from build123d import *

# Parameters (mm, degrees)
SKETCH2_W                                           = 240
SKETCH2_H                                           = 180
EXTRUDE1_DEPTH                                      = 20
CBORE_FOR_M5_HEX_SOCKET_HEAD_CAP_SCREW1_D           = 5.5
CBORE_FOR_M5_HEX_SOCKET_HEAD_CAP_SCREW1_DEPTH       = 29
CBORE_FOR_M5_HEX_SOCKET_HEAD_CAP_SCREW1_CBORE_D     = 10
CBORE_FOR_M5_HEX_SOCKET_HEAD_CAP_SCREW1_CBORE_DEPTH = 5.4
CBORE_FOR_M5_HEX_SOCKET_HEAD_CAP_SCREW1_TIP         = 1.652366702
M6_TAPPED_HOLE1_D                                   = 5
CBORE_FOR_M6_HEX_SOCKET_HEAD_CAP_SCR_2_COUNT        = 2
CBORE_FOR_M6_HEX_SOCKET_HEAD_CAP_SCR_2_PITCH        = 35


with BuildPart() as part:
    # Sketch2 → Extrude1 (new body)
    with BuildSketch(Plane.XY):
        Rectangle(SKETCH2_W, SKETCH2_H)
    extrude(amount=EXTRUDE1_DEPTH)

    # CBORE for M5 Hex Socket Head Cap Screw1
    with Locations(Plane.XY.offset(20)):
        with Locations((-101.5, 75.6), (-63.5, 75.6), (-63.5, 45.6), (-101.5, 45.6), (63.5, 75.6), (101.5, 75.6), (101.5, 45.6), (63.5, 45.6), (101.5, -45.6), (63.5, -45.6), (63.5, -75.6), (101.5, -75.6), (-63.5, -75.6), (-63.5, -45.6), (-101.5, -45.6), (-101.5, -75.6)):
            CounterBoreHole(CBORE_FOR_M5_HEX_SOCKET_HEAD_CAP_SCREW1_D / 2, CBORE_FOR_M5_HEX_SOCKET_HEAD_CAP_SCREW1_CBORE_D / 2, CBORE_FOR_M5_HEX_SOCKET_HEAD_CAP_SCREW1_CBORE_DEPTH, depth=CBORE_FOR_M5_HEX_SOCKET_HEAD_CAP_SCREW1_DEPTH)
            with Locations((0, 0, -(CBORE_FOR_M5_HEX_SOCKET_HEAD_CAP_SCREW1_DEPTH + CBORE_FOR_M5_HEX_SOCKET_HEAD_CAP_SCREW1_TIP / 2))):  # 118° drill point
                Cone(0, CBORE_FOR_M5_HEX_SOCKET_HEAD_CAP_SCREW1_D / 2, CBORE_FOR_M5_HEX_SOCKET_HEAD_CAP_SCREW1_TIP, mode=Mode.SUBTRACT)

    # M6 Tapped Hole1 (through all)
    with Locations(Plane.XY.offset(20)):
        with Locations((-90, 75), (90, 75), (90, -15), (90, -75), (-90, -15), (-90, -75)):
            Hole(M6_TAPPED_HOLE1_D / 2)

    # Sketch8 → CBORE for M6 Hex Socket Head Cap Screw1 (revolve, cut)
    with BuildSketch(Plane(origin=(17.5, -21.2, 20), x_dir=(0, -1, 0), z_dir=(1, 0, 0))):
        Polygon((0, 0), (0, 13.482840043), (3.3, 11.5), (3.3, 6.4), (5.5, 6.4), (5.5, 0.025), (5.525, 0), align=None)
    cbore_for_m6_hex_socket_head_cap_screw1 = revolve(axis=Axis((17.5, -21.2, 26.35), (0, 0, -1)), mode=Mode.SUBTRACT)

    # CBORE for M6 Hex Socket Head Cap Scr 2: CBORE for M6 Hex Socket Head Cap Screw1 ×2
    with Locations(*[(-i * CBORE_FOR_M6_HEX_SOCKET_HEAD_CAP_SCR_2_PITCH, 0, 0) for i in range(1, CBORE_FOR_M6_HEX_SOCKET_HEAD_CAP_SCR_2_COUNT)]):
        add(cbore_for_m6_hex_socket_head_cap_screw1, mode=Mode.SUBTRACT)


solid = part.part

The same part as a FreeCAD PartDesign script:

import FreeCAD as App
import Part
import Sketcher
from FreeCAD import Vector
Q = App.Units.Quantity

doc = App.newDocument("Part")
params = doc.addObject("Spreadsheet::Sheet", "Params")
for row, (alias, value) in enumerate([
    ("sketch1_width", "240 mm"),
    ("sketch1_height", "180 mm"),
    ("pad1_length", "20 mm"),
    ("sketch2_diameter", "5.5 mm"),
    ("hole_diameter", "5.5 mm"),
    ("hole_depth", "29 mm"),
    ("hole_cbore_diameter", "10 mm"),
    ("hole_cbore_depth", "5.4 mm"),
    ("sketch3_diameter", "5 mm"),
    ("hole2_diameter", "5 mm"),
    ("sketch4_width", "2.2 mm"),
    ("sketch4_height", "5.1 mm"),
    ("groove_angle", "360 deg"),
    ("linearpattern_pitch", "35 mm"),
], start=1):
    params.set(f"A{row}", alias)
    params.set(f"B{row}", "=" + value)
    params.setAlias(f"B{row}", alias)

body = doc.addObject("PartDesign::Body", "Body")

sketch1 = body.newObject("Sketcher::SketchObject", "Sketch")
sketch1.AttachmentSupport = (doc.getObject("XY_Plane"), [""])
sketch1.MapMode = "FlatFace"
sketch1.addGeometry(Part.LineSegment(Vector(-120, 90, 0), Vector(-120, -90, 0)), False)
sketch1.addGeometry(Part.LineSegment(Vector(-120, -90, 0), Vector(120, -90, 0)), False)
sketch1.addGeometry(Part.LineSegment(Vector(120, -90, 0), Vector(120, 90, 0)), False)
sketch1.addGeometry(Part.LineSegment(Vector(120, 90, 0), Vector(-120, 90, 0)), False)
sketch1.addConstraint(Sketcher.Constraint("Coincident", 0, 2, 1, 1))
sketch1.addConstraint(Sketcher.Constraint("Coincident", 1, 2, 2, 1))
sketch1.addConstraint(Sketcher.Constraint("Coincident", 2, 2, 3, 1))
sketch1.addConstraint(Sketcher.Constraint("Coincident", 3, 2, 0, 1))
sketch1.addConstraint(Sketcher.Constraint("Vertical", 0))
sketch1.addConstraint(Sketcher.Constraint("Horizontal", 1))
sketch1.addConstraint(Sketcher.Constraint("Vertical", 2))
sketch1.addConstraint(Sketcher.Constraint("Horizontal", 3))
sketch1.addConstraint(Sketcher.Constraint("Symmetric", 0, 2, 2, 2, -1, 1))
sketch1.addConstraint(Sketcher.Constraint("DistanceX", 1, 1, 1, 2, Q("240 mm")))
sketch1.addConstraint(Sketcher.Constraint("DistanceY", 0, 2, 0, 1, Q("180 mm")))
sketch1.setExpression("Constraints[9]", "Params.sketch1_width")
sketch1.setExpression("Constraints[10]", "Params.sketch1_height")
pad1 = body.newObject("PartDesign::Pad", "Pad")
pad1.Profile = sketch1
pad1.setExpression("Length", "Params.pad1_length")

sketch2 = body.newObject("Sketcher::SketchObject", "Sketch001")
sketch2.AttachmentSupport = (doc.getObject("XY_Plane"), [""])
sketch2.MapMode = "FlatFace"
sketch2.AttachmentOffset = App.Placement(Vector(0, 0, 20), App.Rotation())
sketch2.addGeometry(Part.Circle(Vector(-101.5, 75.6, 0), Vector(0, 0, 1), 2.8), False)
sketch2.addGeometry(Part.Circle(Vector(-63.5, 75.6, 0), Vector(0, 0, 1), 2.8), False)
sketch2.addGeometry(Part.Circle(Vector(-63.5, 45.6, 0), Vector(0, 0, 1), 2.8), False)
sketch2.addGeometry(Part.Circle(Vector(-101.5, 45.6, 0), Vector(0, 0, 1), 2.8), False)
sketch2.addGeometry(Part.Circle(Vector(63.5, 75.6, 0), Vector(0, 0, 1), 2.8), False)
sketch2.addGeometry(Part.Circle(Vector(101.5, 75.6, 0), Vector(0, 0, 1), 2.8), False)
sketch2.addGeometry(Part.Circle(Vector(101.5, 45.6, 0), Vector(0, 0, 1), 2.8), False)
sketch2.addGeometry(Part.Circle(Vector(63.5, 45.6, 0), Vector(0, 0, 1), 2.8), False)
sketch2.addGeometry(Part.Circle(Vector(101.5, -45.6, 0), Vector(0, 0, 1), 2.8), False)
sketch2.addGeometry(Part.Circle(Vector(63.5, -45.6, 0), Vector(0, 0, 1), 2.8), False)
sketch2.addGeometry(Part.Circle(Vector(63.5, -75.6, 0), Vector(0, 0, 1), 2.8), False)
sketch2.addGeometry(Part.Circle(Vector(101.5, -75.6, 0), Vector(0, 0, 1), 2.8), False)
sketch2.addGeometry(Part.Circle(Vector(-63.5, -75.6, 0), Vector(0, 0, 1), 2.8), False)
sketch2.addGeometry(Part.Circle(Vector(-63.5, -45.6, 0), Vector(0, 0, 1), 2.8), False)
sketch2.addGeometry(Part.Circle(Vector(-101.5, -45.6, 0), Vector(0, 0, 1), 2.8), False)
sketch2.addGeometry(Part.Circle(Vector(-101.5, -75.6, 0), Vector(0, 0, 1), 2.8), False)
sketch2.addConstraint(Sketcher.Constraint("Equal", 0, 1))
sketch2.addConstraint(Sketcher.Constraint("Equal", 1, 2))
sketch2.addConstraint(Sketcher.Constraint("Equal", 2, 3))
sketch2.addConstraint(Sketcher.Constraint("Equal", 3, 4))
sketch2.addConstraint(Sketcher.Constraint("Equal", 4, 5))
sketch2.addConstraint(Sketcher.Constraint("Equal", 5, 6))
sketch2.addConstraint(Sketcher.Constraint("Equal", 6, 7))
sketch2.addConstraint(Sketcher.Constraint("Equal", 7, 8))
sketch2.addConstraint(Sketcher.Constraint("Equal", 8, 9))
sketch2.addConstraint(Sketcher.Constraint("Equal", 9, 10))
sketch2.addConstraint(Sketcher.Constraint("Equal", 10, 11))
sketch2.addConstraint(Sketcher.Constraint("Equal", 11, 12))
sketch2.addConstraint(Sketcher.Constraint("Equal", 12, 13))
sketch2.addConstraint(Sketcher.Constraint("Equal", 13, 14))
sketch2.addConstraint(Sketcher.Constraint("Equal", 14, 15))
sketch2.addConstraint(Sketcher.Constraint("Symmetric", 3, 3, 8, 3, -1, 1))
sketch2.addConstraint(Sketcher.Constraint("Symmetric", 2, 3, 9, 3, -1, 1))
sketch2.addConstraint(Sketcher.Constraint("Symmetric", 1, 3, 10, 3, -1, 1))
sketch2.addConstraint(Sketcher.Constraint("Symmetric", 0, 3, 11, 3, -1, 1))
sketch2.addConstraint(Sketcher.Constraint("Symmetric", 4, 3, 12, 3, -1, 1))
sketch2.addConstraint(Sketcher.Constraint("Symmetric", 7, 3, 13, 3, -1, 1))
sketch2.addConstraint(Sketcher.Constraint("Symmetric", 6, 3, 14, 3, -1, 1))
sketch2.addConstraint(Sketcher.Constraint("Symmetric", 5, 3, 15, 3, -1, 1))
sketch2.addConstraint(Sketcher.Constraint("Symmetric", 1, 3, 4, 3, -2))
sketch2.addConstraint(Sketcher.Constraint("Symmetric", 0, 3, 5, 3, -2))
sketch2.addConstraint(Sketcher.Constraint("Symmetric", 3, 3, 6, 3, -2))
sketch2.addConstraint(Sketcher.Constraint("Symmetric", 2, 3, 7, 3, -2))
sketch2.addConstraint(Sketcher.Constraint("Horizontal", 0, 3, 1, 3))
sketch2.addConstraint(Sketcher.Constraint("Horizontal", 2, 3, 3, 3))
sketch2.addConstraint(Sketcher.Constraint("Vertical", 1, 3, 2, 3))
sketch2.addConstraint(Sketcher.Constraint("Vertical", 0, 3, 3, 3))
sketch2.addConstraint(Sketcher.Constraint("Diameter", 0, Q("5.5 mm")))
sketch2.addConstraint(Sketcher.Constraint("DistanceX", 0, 3, 1, 3, Q("38 mm")))
sketch2.addConstraint(Sketcher.Constraint("DistanceY", 2, 3, 1, 3, Q("30 mm")))
sketch2.addConstraint(Sketcher.Constraint("DistanceX", 1, 3, 4, 3, Q("127 mm")))
sketch2.addConstraint(Sketcher.Constraint("DistanceY", -1, 1, 0, 3, Q("75.6 mm")))
sketch2.setExpression("Constraints[31]", "Params.sketch2_diameter")
doc.recompute()
hole = body.newObject("PartDesign::Hole", "Hole")
hole.Profile = sketch2
hole.ThreadType = "None"
hole.setExpression("Diameter", "Params.hole_diameter")
hole.DepthType = "Dimension"
hole.setExpression("Depth", "Params.hole_depth")
hole.DrillPoint = "Angled"
hole.DrillPointAngle = 118
hole.HoleCutType = "Counterbore"
hole.setExpression("HoleCutDiameter", "Params.hole_cbore_diameter")
hole.setExpression("HoleCutDepth", "Params.hole_cbore_depth")

sketch3 = body.newObject("Sketcher::SketchObject", "Sketch002")
sketch3.AttachmentSupport = (doc.getObject("XY_Plane"), [""])
sketch3.MapMode = "FlatFace"
sketch3.AttachmentOffset = App.Placement(Vector(0, 0, 20), App.Rotation())
sketch3.addGeometry(Part.Circle(Vector(-90, 75, 0), Vector(0, 0, 1), 2.5), False)
sketch3.addGeometry(Part.Circle(Vector(90, 75, 0), Vector(0, 0, 1), 2.5), False)
sketch3.addGeometry(Part.Circle(Vector(90, -15, 0), Vector(0, 0, 1), 2.5), False)
sketch3.addGeometry(Part.Circle(Vector(90, -75, 0), Vector(0, 0, 1), 2.5), False)
sketch3.addGeometry(Part.Circle(Vector(-90, -15, 0), Vector(0, 0, 1), 2.5), False)
sketch3.addGeometry(Part.Circle(Vector(-90, -75, 0), Vector(0, 0, 1), 2.5), False)
sketch3.addConstraint(Sketcher.Constraint("Equal", 0, 1))
sketch3.addConstraint(Sketcher.Constraint("Equal", 1, 2))
sketch3.addConstraint(Sketcher.Constraint("Equal", 2, 3))
sketch3.addConstraint(Sketcher.Constraint("Equal", 3, 4))
sketch3.addConstraint(Sketcher.Constraint("Equal", 4, 5))
sketch3.addConstraint(Sketcher.Constraint("Symmetric", 0, 3, 3, 3, -1, 1))
sketch3.addConstraint(Sketcher.Constraint("Symmetric", 1, 3, 5, 3, -1, 1))
sketch3.addConstraint(Sketcher.Constraint("Symmetric", 0, 3, 1, 3, -2))
sketch3.addConstraint(Sketcher.Constraint("Symmetric", 2, 3, 4, 3, -2))
sketch3.addConstraint(Sketcher.Constraint("Vertical", 1, 3, 2, 3))
sketch3.addConstraint(Sketcher.Constraint("Diameter", 0, Q("5 mm")))
sketch3.addConstraint(Sketcher.Constraint("DistanceX", 0, 3, -1, 1, Q("90 mm")))
sketch3.addConstraint(Sketcher.Constraint("DistanceY", -1, 1, 0, 3, Q("75 mm")))
sketch3.addConstraint(Sketcher.Constraint("DistanceY", 2, 3, -1, 1, Q("15 mm")))
sketch3.setExpression("Constraints[10]", "Params.sketch3_diameter")
doc.recompute()
hole2 = body.newObject("PartDesign::Hole", "Hole001")
hole2.Profile = sketch3
hole2.ThreadType = "None"
hole2.setExpression("Diameter", "Params.hole2_diameter")
hole2.DepthType = "ThroughAll"

sketch4 = body.newObject("Sketcher::SketchObject", "Sketch003")
sketch4.AttachmentSupport = (doc.getObject("YZ_Plane"), [""])
sketch4.MapMode = "FlatFace"
sketch4.AttachmentOffset = App.Placement(Vector(0, 0, 17.5), App.Rotation())
sketch4.addGeometry(Part.LineSegment(Vector(-21.2, 6.517, 0), Vector(-21.2, 20, 0)), False)
sketch4.addGeometry(Part.LineSegment(Vector(-21.2, 20, 0), Vector(-26.725, 20, 0)), False)
sketch4.addGeometry(Part.LineSegment(Vector(-26.725, 20, 0), Vector(-26.7, 19.975, 0)), False)
sketch4.addGeometry(Part.LineSegment(Vector(-26.7, 19.975, 0), Vector(-26.7, 13.6, 0)), False)
sketch4.addGeometry(Part.LineSegment(Vector(-26.7, 13.6, 0), Vector(-24.5, 13.6, 0)), False)
sketch4.addGeometry(Part.LineSegment(Vector(-24.5, 13.6, 0), Vector(-24.5, 8.5, 0)), False)
sketch4.addGeometry(Part.LineSegment(Vector(-24.5, 8.5, 0), Vector(-21.2, 6.517, 0)), False)
sketch4.addGeometry(Part.LineSegment(Vector(-21.2, 20, 0), Vector(-21.2, 6.517, 0)), True)
sketch4.addConstraint(Sketcher.Constraint("Coincident", 0, 2, 1, 1))
sketch4.addConstraint(Sketcher.Constraint("Coincident", 1, 2, 2, 1))
sketch4.addConstraint(Sketcher.Constraint("Coincident", 2, 2, 3, 1))
sketch4.addConstraint(Sketcher.Constraint("Coincident", 3, 2, 4, 1))
sketch4.addConstraint(Sketcher.Constraint("Coincident", 4, 2, 5, 1))
sketch4.addConstraint(Sketcher.Constraint("Coincident", 5, 2, 6, 1))
sketch4.addConstraint(Sketcher.Constraint("Coincident", 6, 2, 0, 1))
sketch4.addConstraint(Sketcher.Constraint("Vertical", 0))
sketch4.addConstraint(Sketcher.Constraint("Horizontal", 1))
sketch4.addConstraint(Sketcher.Constraint("Vertical", 3))
sketch4.addConstraint(Sketcher.Constraint("Horizontal", 4))
sketch4.addConstraint(Sketcher.Constraint("Vertical", 5))
sketch4.addConstraint(Sketcher.Constraint("Vertical", 7))
sketch4.addConstraint(Sketcher.Constraint("Coincident", 7, 1, 0, 2))
sketch4.addConstraint(Sketcher.Constraint("Equal", 0, 7))
sketch4.addConstraint(Sketcher.Constraint("Angle", 2, Q("-45 deg")))
sketch4.addConstraint(Sketcher.Constraint("Angle", 6, Q("-31 deg")))
sketch4.addConstraint(Sketcher.Constraint("DistanceX", 4, 1, 4, 2, Q("2.2 mm")))
sketch4.addConstraint(Sketcher.Constraint("DistanceY", 5, 2, 5, 1, Q("5.1 mm")))
sketch4.addConstraint(Sketcher.Constraint("DistanceY", -1, 1, 0, 2, Q("20 mm")))
sketch4.addConstraint(Sketcher.Constraint("DistanceX", 0, 2, -1, 1, Q("21.2 mm")))
sketch4.addConstraint(Sketcher.Constraint("DistanceX", 2, 2, -1, 1, Q("26.7 mm")))
sketch4.addConstraint(Sketcher.Constraint("DistanceY", -1, 1, 3, 2, Q("13.6 mm")))
sketch4.addConstraint(Sketcher.Constraint("DistanceX", 1, 2, 1, 1, Q("5.525 mm")))
sketch4.setExpression("Constraints[17]", "Params.sketch4_width")
sketch4.setExpression("Constraints[18]", "Params.sketch4_height")
groove = body.newObject("PartDesign::Groove", "Groove")
groove.Profile = sketch4
groove.ReferenceAxis = (sketch4, ["Axis0"])
groove.setExpression("Angle", "Params.groove_angle")
doc.recompute()

linearpattern = body.newObject("PartDesign::LinearPattern", "LinearPattern")
linearpattern.Originals = [groove]
linearpattern.Direction = (doc.getObject("X_Axis"), [""])
linearpattern.Mode = "offset"
linearpattern.setExpression("Offset", "Params.linearpattern_pitch")
linearpattern.Occurrences = 2
linearpattern.Reversed = True
body.Tip = linearpattern

doc.recompute()
